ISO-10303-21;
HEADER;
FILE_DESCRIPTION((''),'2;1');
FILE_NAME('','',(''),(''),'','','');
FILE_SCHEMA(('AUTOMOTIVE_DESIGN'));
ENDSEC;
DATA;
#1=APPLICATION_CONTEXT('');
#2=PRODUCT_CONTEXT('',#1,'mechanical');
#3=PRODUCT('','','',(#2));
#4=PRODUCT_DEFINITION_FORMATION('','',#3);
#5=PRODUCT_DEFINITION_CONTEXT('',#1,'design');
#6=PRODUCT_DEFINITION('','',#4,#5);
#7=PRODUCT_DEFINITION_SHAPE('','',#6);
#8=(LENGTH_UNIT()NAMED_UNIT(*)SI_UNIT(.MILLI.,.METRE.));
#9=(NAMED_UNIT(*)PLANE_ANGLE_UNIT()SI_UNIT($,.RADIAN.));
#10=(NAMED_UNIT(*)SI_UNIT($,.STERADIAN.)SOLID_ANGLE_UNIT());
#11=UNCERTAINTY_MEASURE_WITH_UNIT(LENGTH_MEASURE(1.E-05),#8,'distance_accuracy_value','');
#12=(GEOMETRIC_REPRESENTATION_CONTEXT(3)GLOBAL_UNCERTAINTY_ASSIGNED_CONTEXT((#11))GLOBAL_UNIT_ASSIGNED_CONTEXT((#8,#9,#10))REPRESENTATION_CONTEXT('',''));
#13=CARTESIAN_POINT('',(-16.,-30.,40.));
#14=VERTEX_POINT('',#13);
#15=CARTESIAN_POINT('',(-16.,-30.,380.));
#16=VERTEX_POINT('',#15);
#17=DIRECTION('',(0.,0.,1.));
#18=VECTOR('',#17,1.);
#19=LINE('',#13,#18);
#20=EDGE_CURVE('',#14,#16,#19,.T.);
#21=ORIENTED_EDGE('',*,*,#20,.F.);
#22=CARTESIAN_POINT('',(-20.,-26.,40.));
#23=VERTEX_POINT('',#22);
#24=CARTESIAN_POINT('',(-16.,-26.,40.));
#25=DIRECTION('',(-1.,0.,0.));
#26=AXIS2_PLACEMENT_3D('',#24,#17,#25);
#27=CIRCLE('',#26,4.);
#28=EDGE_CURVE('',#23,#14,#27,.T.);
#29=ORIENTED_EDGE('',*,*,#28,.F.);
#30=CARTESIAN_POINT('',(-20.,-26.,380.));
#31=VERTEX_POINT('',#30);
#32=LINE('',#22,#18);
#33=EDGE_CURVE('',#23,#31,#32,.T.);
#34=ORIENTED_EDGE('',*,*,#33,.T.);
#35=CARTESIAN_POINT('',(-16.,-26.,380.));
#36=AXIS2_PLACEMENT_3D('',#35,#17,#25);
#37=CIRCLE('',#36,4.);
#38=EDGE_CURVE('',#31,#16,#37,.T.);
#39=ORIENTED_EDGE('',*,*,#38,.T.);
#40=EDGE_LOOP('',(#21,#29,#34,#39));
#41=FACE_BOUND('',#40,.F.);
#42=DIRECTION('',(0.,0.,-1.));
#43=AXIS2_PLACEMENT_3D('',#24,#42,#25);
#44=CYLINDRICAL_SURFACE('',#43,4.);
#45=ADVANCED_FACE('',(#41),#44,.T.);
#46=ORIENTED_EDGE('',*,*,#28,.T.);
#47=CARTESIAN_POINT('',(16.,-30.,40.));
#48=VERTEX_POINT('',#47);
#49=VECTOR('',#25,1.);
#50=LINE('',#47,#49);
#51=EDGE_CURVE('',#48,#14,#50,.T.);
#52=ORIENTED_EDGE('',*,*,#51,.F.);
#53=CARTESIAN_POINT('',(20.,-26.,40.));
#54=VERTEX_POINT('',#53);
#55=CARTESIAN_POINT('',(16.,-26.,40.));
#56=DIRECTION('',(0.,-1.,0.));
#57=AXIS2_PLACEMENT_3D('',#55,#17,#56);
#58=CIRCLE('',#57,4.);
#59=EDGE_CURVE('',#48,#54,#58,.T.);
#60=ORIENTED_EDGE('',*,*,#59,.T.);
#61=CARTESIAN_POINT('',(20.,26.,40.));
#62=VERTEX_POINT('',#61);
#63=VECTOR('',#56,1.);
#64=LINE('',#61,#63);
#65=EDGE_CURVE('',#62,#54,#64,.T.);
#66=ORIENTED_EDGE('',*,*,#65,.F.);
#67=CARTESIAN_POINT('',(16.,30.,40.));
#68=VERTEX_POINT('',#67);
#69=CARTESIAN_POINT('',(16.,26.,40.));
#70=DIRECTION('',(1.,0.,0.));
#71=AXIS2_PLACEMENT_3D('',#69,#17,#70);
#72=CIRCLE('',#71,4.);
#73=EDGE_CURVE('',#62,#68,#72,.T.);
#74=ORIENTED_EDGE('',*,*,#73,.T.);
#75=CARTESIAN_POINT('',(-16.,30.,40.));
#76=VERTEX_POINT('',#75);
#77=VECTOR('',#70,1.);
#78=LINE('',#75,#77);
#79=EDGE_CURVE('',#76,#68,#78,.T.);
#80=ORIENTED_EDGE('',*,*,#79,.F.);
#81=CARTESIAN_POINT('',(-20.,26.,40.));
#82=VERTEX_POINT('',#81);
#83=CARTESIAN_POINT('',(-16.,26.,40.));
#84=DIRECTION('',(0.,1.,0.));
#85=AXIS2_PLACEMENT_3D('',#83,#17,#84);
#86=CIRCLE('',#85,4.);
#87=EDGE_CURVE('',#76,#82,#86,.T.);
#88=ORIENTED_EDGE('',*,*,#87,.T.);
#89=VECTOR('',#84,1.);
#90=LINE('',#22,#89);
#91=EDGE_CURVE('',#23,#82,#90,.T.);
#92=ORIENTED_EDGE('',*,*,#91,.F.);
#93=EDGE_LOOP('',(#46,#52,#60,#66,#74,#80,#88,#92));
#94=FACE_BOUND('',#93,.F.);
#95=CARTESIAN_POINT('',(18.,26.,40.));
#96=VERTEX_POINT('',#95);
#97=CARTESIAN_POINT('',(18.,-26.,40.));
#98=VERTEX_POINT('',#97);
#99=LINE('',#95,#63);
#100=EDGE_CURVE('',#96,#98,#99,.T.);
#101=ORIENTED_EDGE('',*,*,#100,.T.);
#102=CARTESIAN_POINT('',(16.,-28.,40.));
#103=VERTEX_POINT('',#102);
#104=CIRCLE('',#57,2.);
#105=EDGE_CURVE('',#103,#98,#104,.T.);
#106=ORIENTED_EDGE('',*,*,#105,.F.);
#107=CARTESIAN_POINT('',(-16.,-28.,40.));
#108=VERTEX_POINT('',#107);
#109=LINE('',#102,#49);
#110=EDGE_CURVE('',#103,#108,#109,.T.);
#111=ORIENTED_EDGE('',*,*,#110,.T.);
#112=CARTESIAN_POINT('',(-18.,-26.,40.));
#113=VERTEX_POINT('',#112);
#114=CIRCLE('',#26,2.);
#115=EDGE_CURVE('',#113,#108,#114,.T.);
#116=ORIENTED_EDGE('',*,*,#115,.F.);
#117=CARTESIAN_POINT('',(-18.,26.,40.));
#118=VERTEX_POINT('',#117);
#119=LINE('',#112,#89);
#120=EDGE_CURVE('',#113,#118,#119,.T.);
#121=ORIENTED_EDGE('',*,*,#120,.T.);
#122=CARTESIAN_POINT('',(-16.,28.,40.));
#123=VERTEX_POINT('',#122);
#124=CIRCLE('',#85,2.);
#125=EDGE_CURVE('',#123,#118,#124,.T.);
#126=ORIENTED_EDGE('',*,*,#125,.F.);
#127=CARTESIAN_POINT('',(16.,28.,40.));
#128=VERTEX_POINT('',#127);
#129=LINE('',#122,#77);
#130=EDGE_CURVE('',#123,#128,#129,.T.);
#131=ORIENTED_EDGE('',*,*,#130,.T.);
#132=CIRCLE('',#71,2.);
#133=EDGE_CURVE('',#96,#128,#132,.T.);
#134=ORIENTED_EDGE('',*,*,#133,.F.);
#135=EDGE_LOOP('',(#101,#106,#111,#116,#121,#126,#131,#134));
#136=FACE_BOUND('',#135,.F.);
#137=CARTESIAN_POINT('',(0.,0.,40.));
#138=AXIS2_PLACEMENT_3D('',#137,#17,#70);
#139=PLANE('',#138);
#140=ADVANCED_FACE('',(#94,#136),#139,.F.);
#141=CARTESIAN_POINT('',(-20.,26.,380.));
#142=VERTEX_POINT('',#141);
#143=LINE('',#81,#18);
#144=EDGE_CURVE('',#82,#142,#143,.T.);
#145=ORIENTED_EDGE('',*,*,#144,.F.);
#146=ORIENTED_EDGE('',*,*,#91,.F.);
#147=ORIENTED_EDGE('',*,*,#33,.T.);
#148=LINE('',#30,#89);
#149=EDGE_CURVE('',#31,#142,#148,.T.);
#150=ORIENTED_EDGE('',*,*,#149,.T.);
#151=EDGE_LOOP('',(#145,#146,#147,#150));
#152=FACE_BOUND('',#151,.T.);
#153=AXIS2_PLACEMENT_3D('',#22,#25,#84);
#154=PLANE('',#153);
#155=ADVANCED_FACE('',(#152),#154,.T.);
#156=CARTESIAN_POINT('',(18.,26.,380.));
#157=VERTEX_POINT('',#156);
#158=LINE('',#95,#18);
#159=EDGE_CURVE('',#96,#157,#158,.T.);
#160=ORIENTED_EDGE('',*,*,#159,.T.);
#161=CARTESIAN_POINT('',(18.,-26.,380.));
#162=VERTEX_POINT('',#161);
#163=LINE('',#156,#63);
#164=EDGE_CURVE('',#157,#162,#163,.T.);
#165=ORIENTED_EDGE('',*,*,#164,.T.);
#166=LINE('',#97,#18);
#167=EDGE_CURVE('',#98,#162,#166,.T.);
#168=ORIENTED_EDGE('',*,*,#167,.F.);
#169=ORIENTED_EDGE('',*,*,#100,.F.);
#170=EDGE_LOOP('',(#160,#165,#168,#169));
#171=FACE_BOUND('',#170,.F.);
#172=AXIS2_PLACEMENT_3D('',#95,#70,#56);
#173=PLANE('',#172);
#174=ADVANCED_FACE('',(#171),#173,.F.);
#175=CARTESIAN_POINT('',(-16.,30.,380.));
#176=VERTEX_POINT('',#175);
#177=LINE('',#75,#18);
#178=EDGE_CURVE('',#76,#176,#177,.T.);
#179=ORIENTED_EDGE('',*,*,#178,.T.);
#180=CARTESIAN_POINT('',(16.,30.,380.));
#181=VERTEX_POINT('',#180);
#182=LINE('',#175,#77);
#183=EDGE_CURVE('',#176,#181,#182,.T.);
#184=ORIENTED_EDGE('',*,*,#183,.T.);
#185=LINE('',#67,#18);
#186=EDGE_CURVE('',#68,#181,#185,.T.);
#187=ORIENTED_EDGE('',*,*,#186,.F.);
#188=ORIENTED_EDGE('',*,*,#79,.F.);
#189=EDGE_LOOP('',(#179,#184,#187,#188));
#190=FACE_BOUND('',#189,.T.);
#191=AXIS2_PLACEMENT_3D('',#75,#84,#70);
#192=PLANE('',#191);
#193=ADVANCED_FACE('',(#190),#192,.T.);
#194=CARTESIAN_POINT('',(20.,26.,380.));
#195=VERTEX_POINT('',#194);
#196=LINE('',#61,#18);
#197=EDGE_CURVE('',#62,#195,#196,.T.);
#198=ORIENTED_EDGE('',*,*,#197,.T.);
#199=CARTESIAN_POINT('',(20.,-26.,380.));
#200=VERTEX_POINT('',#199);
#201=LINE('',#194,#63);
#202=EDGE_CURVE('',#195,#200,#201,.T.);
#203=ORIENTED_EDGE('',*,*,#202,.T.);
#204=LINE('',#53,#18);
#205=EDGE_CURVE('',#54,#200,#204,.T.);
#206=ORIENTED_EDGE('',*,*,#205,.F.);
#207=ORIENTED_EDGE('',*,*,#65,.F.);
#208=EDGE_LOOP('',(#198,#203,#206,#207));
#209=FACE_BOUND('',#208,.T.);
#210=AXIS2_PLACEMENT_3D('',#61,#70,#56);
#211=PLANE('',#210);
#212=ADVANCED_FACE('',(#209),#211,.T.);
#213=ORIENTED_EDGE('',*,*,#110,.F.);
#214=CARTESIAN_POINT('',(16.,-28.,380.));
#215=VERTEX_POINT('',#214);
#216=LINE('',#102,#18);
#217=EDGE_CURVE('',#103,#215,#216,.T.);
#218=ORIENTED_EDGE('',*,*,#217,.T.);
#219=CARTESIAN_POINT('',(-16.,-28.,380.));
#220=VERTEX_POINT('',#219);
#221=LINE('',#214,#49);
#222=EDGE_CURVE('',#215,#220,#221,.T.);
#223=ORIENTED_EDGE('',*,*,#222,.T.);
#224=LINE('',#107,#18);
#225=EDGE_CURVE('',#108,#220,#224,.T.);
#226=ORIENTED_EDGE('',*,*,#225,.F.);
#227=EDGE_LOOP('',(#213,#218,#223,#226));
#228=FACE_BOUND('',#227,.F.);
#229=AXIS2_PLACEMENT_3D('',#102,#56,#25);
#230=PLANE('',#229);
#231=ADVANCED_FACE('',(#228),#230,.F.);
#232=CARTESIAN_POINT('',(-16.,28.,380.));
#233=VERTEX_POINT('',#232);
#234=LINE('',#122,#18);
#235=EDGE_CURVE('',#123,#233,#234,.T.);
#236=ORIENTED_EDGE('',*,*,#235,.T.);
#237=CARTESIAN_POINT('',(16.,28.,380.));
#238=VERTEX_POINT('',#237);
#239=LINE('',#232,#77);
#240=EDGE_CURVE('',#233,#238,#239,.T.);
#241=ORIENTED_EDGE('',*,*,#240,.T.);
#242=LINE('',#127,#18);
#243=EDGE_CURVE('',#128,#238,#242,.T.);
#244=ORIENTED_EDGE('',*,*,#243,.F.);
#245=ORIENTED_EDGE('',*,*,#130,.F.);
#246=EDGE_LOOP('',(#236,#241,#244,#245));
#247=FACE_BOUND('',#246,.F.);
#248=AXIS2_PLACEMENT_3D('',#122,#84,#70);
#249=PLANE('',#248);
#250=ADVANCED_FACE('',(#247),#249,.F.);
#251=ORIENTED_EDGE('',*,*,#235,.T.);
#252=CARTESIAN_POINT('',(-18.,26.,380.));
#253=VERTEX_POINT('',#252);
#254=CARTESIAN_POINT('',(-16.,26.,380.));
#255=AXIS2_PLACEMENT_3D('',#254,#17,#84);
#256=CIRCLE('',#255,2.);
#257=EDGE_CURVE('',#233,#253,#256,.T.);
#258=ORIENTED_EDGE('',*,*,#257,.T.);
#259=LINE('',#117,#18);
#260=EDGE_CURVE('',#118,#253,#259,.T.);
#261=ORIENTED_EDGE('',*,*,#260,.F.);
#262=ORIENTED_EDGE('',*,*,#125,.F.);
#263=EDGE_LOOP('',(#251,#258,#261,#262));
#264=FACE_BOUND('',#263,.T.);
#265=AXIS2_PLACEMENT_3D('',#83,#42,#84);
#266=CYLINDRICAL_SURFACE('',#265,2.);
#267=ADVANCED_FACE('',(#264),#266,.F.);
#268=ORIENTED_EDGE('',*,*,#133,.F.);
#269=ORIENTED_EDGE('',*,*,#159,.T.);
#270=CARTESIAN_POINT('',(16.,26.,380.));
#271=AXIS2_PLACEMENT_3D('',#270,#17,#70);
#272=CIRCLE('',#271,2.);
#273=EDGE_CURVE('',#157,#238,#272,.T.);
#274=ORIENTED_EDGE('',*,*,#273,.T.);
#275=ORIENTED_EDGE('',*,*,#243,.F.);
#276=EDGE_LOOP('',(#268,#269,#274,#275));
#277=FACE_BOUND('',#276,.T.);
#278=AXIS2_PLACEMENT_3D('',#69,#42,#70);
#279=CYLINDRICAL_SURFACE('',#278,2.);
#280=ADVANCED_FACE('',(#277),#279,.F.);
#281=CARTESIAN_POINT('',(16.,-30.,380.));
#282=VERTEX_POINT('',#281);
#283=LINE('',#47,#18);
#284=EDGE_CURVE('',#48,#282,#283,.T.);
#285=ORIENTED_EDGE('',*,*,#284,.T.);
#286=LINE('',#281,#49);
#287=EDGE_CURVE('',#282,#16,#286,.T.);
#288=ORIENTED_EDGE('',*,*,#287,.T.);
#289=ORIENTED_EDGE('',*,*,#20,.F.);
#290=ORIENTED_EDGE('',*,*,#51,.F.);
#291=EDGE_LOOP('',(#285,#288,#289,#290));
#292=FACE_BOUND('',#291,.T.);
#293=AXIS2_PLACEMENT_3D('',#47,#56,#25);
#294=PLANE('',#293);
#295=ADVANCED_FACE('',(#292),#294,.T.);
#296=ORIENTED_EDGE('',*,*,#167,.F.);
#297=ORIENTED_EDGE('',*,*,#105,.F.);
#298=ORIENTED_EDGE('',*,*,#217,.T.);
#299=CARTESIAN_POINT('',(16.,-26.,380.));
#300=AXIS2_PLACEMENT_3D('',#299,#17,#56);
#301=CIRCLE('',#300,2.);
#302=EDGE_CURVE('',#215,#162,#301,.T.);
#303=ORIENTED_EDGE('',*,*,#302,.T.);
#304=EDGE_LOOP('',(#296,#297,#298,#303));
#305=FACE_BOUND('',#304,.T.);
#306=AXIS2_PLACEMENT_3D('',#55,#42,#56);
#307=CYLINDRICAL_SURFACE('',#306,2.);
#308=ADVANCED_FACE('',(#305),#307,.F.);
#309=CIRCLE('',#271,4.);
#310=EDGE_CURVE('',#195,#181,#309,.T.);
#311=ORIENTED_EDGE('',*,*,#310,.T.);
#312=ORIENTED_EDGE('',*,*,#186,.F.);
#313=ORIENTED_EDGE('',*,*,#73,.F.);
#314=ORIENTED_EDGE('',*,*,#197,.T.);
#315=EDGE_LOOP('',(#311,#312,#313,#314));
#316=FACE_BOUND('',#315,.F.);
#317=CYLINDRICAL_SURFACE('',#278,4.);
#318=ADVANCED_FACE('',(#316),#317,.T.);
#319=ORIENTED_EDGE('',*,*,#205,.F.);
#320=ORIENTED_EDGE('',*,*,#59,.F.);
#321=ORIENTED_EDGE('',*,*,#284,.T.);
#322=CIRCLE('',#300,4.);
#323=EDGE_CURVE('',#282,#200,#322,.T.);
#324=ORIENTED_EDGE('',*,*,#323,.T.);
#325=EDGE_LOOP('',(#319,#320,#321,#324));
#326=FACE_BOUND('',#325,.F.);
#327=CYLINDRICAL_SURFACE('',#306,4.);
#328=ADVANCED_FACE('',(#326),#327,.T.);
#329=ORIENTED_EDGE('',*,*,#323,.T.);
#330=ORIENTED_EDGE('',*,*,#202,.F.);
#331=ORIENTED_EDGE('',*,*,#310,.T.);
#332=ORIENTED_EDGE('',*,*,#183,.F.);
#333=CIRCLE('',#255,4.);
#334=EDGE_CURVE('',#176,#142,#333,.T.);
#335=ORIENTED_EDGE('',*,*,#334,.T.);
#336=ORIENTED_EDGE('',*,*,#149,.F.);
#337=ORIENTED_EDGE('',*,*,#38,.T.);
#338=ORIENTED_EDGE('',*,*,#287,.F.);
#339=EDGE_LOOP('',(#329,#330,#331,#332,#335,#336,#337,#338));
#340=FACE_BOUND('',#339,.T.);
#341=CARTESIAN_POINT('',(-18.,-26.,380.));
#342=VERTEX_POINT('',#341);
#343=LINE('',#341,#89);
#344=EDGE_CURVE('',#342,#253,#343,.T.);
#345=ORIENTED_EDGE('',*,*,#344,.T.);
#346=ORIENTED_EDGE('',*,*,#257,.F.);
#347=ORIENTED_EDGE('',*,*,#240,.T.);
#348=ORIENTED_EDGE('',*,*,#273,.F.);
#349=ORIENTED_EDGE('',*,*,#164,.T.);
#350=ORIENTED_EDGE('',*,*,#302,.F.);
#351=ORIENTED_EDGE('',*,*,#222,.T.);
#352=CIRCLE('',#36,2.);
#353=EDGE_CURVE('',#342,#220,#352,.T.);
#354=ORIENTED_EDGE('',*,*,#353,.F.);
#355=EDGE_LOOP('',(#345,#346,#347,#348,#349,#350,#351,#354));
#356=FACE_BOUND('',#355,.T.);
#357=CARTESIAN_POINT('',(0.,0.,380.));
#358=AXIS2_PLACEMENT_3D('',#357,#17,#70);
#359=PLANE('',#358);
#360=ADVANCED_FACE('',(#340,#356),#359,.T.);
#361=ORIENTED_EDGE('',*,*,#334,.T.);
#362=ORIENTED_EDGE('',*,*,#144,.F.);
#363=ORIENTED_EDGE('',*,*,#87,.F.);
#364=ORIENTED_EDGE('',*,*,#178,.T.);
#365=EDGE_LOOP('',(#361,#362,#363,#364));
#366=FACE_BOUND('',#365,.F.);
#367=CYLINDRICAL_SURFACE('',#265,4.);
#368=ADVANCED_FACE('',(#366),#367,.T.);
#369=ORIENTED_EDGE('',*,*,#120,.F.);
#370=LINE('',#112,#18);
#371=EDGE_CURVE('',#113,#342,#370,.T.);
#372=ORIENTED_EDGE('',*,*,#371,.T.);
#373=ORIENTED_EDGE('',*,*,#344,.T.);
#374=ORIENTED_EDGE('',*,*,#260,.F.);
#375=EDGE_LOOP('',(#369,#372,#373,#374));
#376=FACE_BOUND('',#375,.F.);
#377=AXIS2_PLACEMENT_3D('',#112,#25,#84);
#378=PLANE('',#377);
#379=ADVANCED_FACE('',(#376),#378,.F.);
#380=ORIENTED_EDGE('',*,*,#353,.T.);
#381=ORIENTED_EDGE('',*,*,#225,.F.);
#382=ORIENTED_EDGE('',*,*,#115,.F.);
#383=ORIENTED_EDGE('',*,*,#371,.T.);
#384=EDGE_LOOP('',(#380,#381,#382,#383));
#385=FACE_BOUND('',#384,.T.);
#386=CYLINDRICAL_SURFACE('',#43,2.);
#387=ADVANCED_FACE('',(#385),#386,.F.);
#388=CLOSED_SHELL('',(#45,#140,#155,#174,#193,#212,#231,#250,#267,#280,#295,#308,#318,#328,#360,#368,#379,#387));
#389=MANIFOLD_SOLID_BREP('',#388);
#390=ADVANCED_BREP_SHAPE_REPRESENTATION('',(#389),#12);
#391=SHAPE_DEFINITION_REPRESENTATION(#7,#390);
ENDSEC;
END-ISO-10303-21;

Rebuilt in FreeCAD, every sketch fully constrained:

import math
import FreeCAD as App
import Part
import Sketcher

doc = App.newDocument("Part")
body = doc.addObject("PartDesign::Body", "Body")

sketch1 = body.newObject("Sketcher::SketchObject", "Sketch")
sketch1.AttachmentSupport = (doc.getObject("XY_Plane"), [""])
sketch1.MapMode = "FlatFace"
sketch1.AttachmentOffset = App.Placement(App.Vector(0, 0, 40), App.Rotation())
sketch1.addGeometry([
    Part.LineSegment(App.Vector(-20, 26, 0), App.Vector(-20, -26, 0)),
    Part.ArcOfCircle(Part.Circle(App.Vector(-16, -26, 0), App.Vector(0, 0, 1), 4), math.radians(180), math.radians(270)),
    Part.LineSegment(App.Vector(-16, -30, 0), App.Vector(16, -30, 0)),
    Part.ArcOfCircle(Part.Circle(App.Vector(16, -26, 0), App.Vector(0, 0, 1), 4), math.radians(-90), math.radians(0)),
    Part.LineSegment(App.Vector(20, -26, 0), App.Vector(20, 26, 0)),
    Part.ArcOfCircle(Part.Circle(App.Vector(16, 26, 0), App.Vector(0, 0, 1), 4), math.radians(0), math.radians(90)),
    Part.LineSegment(App.Vector(16, 30, 0), App.Vector(-16, 30, 0)),
    Part.ArcOfCircle(Part.Circle(App.Vector(-16, 26, 0), App.Vector(0, 0, 1), 4), math.radians(90), math.radians(180)),
    Part.ArcOfCircle(Part.Circle(App.Vector(-16, 26, 0), App.Vector(0, 0, 1), 2), math.radians(90), math.radians(180)),
    Part.LineSegment(App.Vector(-16, 28, 0), App.Vector(16, 28, 0)),
    Part.ArcOfCircle(Part.Circle(App.Vector(16, 26, 0), App.Vector(0, 0, 1), 2), math.radians(0), math.radians(90)),
    Part.LineSegment(App.Vector(18, 26, 0), App.Vector(18, -26, 0)),
    Part.ArcOfCircle(Part.Circle(App.Vector(16, -26, 0), App.Vector(0, 0, 1), 2), math.radians(-90), math.radians(0)),
    Part.LineSegment(App.Vector(16, -28, 0), App.Vector(-16, -28, 0)),
    Part.ArcOfCircle(Part.Circle(App.Vector(-16, -26, 0), App.Vector(0, 0, 1), 2), math.radians(180), math.radians(270)),
    Part.LineSegment(App.Vector(-18, -26, 0), App.Vector(-18, 26, 0)),
], False)
sketch1.addConstraint([
    Sketcher.Constraint("Tangent", 0, 2, 1, 1),
    Sketcher.Constraint("Tangent", 1, 2, 2, 1),
    Sketcher.Constraint("Tangent", 2, 2, 3, 1),
    Sketcher.Constraint("Tangent", 3, 2, 4, 1),
    Sketcher.Constraint("Tangent", 4, 2, 5, 1),
    Sketcher.Constraint("Tangent", 5, 2, 6, 1),
    Sketcher.Constraint("Tangent", 6, 2, 7, 1),
    Sketcher.Constraint("Tangent", 7, 2, 0, 1),
    Sketcher.Constraint("Tangent", 8, 1, 9, 1),
    Sketcher.Constraint("Tangent", 9, 2, 10, 2),
    Sketcher.Constraint("Tangent", 10, 1, 11, 1),
    Sketcher.Constraint("Tangent", 11, 2, 12, 2),
    Sketcher.Constraint("Tangent", 12, 1, 13, 1),
    Sketcher.Constraint("Tangent", 13, 2, 14, 2),
    Sketcher.Constraint("Tangent", 14, 1, 15, 1),
    Sketcher.Constraint("Tangent", 15, 2, 8, 2),
    Sketcher.Constraint("Vertical", 0),
    Sketcher.Constraint("Horizontal", 2),
    Sketcher.Constraint("Vertical", 4),
    Sketcher.Constraint("Horizontal", 6),
    Sketcher.Constraint("Horizontal", 9),
    Sketcher.Constraint("Vertical", 11),
    Sketcher.Constraint("Horizontal", 13),
    Sketcher.Constraint("Vertical", 15),
    Sketcher.Constraint("Coincident", 8, 3, 7, 3),
    Sketcher.Constraint("Coincident", 10, 3, 5, 3),
    Sketcher.Constraint("Coincident", 12, 3, 3, 3),
    Sketcher.Constraint("Equal", 1, 3),
    Sketcher.Constraint("Equal", 3, 5),
    Sketcher.Constraint("Equal", 5, 7),
    Sketcher.Constraint("Equal", 12, 14),
    Sketcher.Constraint("Symmetric", 1, 3, 5, 3, -1, 1),
    Sketcher.Constraint("Radius", 1, 4.0),
    Sketcher.Constraint("Radius", 8, 2.0),
    Sketcher.Constraint("DistanceX", 0, 2, -1, 1, 20.0),
    Sketcher.Constraint("DistanceY", 1, 2, -1, 1, 30.0),
])
pad1 = body.newObject("PartDesign::Pad", "Pad")
pad1.Profile = sketch1
pad1.Length = 340

doc.recompute()
